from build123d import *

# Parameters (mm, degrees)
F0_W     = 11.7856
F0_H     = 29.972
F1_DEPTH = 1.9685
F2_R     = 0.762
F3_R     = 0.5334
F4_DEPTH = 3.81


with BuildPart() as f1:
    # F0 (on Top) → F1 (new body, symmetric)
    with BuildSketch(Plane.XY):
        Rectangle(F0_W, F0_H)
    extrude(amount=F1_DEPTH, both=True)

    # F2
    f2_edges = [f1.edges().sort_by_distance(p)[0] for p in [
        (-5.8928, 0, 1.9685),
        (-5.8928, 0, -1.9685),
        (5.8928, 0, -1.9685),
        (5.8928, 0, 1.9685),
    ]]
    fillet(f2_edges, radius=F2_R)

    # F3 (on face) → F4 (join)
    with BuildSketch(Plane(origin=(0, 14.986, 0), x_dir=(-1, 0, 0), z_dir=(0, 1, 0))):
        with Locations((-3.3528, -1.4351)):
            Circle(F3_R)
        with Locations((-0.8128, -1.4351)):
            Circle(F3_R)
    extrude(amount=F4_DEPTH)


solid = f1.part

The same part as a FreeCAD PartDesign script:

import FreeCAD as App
import Part
import Sketcher
from FreeCAD import Vector
Q = App.Units.Quantity


def edges_at(feature, points):
    """Names of the edges that pass closest to the given points."""
    edges = feature.Shape.Edges
    near = lambda p: min(range(len(edges)), key=lambda i: edges[i].distToShape(Part.Vertex(*p))[0])
    return sorted({f"Edge{near(p) + 1}" for p in points})


def add_polygon(sketch, points):
    """Adds a closed chain of lines whose ends are joined by coincident constraints."""
    first, n = sketch.GeometryCount, len(points)
    for a, b in zip(points, points[1:] + points[:1]):
        sketch.addGeometry(Part.LineSegment(App.Vector(*a, 0), App.Vector(*b, 0)), False)
    for i in range(n):
        sketch.addConstraint(Sketcher.Constraint("Coincident", first + i, 2, first + (i + 1) % n, 1))

doc = App.newDocument("Part")
body = doc.addObject("PartDesign::Body", "Body")

# Sketch on XY plane
sketch1 = body.newObject("Sketcher::SketchObject", "Sketch")
sketch1.AttachmentSupport = (doc.getObject("XY_Plane"), [""])
sketch1.MapMode = "FlatFace"
add_polygon(sketch1, [(-5.8928, 14.986), (-5.8928, -14.986), (5.8928, -14.986), (5.8928, 14.986)])  # lines 0-3
sketch1.addConstraint([
    Sketcher.Constraint("Vertical", 0),
    Sketcher.Constraint("Horizontal", 1),
    Sketcher.Constraint("Vertical", 2),
    Sketcher.Constraint("Horizontal", 3),
    Sketcher.Constraint("Symmetric", 0, 2, 2, 2, -1, 1),
    Sketcher.Constraint("DistanceY", 0, 2, 0, 1, Q("1.18 in")),
    Sketcher.Constraint("DistanceX", 1, 1, 1, 2, Q("0.464 in")),
])
pad1 = body.newObject("PartDesign::Pad", "Pad")
pad1.Profile = sketch1
pad1.Length = Q("0.155 in")
pad1.Midplane = True
doc.recompute()

fillet = body.newObject("PartDesign::Fillet", "Fillet")
fillet.Base = (pad1, edges_at(pad1, [
    (-5.893, 0, 1.968),
    (-5.893, 0, -1.968),
    (5.893, 0, -1.968),
    (5.893, 0, 1.968),
]))
fillet.Radius = Q("0.03 in")

# Sketch on XZ plane
sketch2 = body.newObject("Sketcher::SketchObject", "Sketch001")
sketch2.AttachmentSupport = (doc.getObject("XZ_Plane"), [""])
sketch2.MapMode = "FlatFace"
sketch2.AttachmentOffset = App.Placement(Vector(0, 0, -0.59 * 25.4), App.Rotation())
sketch2.addGeometry([
    Part.Circle(Vector(3.3528, -1.4351, 0), Vector(0, 0, 1), 0.5334),
    Part.Circle(Vector(0.8128, -1.4351, 0), Vector(0, 0, 1), 0.5334),
], False)
sketch2.addConstraint([
    Sketcher.Constraint("Equal", 0, 1),
    Sketcher.Constraint("Horizontal", 0, 3, 1, 3),
    Sketcher.Constraint("Diameter", 0, Q("0.042 in")),
    Sketcher.Constraint("DistanceX", 1, 3, 0, 3, Q("0.1 in")),
    Sketcher.Constraint("DistanceX", -1, 1, 0, 3, Q("0.132 in")),
    Sketcher.Constraint("DistanceY", 0, 3, -1, 1, Q("0.0565 in")),
])
pad2 = body.newObject("PartDesign::Pad", "Pad001")
pad2.Profile = sketch2
pad2.Length = Q("0.15 in")
pad2.Reversed = True

doc.recompute()
